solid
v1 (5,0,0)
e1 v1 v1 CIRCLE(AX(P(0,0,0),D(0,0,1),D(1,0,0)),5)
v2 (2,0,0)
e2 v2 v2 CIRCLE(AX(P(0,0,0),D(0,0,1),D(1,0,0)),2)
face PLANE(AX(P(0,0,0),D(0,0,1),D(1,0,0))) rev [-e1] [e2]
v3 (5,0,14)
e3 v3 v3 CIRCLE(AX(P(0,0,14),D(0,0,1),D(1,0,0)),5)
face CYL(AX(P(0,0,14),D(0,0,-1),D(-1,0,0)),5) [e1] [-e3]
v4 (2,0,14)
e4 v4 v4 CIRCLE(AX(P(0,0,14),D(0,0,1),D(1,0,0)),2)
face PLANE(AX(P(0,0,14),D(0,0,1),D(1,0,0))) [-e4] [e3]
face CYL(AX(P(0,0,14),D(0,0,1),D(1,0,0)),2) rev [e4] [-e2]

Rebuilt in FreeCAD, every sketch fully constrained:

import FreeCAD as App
import Part
import Sketcher

doc = App.newDocument("Part")
body = doc.addObject("PartDesign::Body", "Body")

# Sketch on XY plane
sketch1 = body.newObject("Sketcher::SketchObject", "Sketch")
sketch1.AttachmentSupport = (doc.getObject("XY_Plane"), [""])
sketch1.MapMode = "FlatFace"
sketch1.addGeometry(Part.Circle(App.Vector(0, 0, 0), App.Vector(0, 0, 1), 5), False)
sketch1.addConstraint(Sketcher.Constraint("Coincident", 0, 3, -1, 1))
sketch1.addConstraint(Sketcher.Constraint("Diameter", 0, 10.0))
pad1 = body.newObject("PartDesign::Pad", "Pad")
pad1.Profile = sketch1
pad1.Length = 14

# Sketch on XY plane
sketch2 = body.newObject("Sketcher::SketchObject", "Sketch001")
sketch2.AttachmentSupport = (doc.getObject("XY_Plane"), [""])
sketch2.MapMode = "FlatFace"
sketch2.AttachmentOffset = App.Placement(App.Vector(0, 0, 14), App.Rotation())
sketch2.addGeometry(Part.Circle(App.Vector(0, 0, 0), App.Vector(0, 0, 1), 2), False)
sketch2.addConstraint(Sketcher.Constraint("Coincident", 0, 3, -1, 1))
sketch2.addConstraint(Sketcher.Constraint("Diameter", 0, 4.0))
doc.recompute()
hole = body.newObject("PartDesign::Hole", "Hole")
hole.Profile = sketch2
hole.ThreadType = "None"
hole.Diameter = 4
hole.DepthType = "Dimension"
hole.Depth = 14
hole.DrillPoint = "Flat"

doc.recompute()
